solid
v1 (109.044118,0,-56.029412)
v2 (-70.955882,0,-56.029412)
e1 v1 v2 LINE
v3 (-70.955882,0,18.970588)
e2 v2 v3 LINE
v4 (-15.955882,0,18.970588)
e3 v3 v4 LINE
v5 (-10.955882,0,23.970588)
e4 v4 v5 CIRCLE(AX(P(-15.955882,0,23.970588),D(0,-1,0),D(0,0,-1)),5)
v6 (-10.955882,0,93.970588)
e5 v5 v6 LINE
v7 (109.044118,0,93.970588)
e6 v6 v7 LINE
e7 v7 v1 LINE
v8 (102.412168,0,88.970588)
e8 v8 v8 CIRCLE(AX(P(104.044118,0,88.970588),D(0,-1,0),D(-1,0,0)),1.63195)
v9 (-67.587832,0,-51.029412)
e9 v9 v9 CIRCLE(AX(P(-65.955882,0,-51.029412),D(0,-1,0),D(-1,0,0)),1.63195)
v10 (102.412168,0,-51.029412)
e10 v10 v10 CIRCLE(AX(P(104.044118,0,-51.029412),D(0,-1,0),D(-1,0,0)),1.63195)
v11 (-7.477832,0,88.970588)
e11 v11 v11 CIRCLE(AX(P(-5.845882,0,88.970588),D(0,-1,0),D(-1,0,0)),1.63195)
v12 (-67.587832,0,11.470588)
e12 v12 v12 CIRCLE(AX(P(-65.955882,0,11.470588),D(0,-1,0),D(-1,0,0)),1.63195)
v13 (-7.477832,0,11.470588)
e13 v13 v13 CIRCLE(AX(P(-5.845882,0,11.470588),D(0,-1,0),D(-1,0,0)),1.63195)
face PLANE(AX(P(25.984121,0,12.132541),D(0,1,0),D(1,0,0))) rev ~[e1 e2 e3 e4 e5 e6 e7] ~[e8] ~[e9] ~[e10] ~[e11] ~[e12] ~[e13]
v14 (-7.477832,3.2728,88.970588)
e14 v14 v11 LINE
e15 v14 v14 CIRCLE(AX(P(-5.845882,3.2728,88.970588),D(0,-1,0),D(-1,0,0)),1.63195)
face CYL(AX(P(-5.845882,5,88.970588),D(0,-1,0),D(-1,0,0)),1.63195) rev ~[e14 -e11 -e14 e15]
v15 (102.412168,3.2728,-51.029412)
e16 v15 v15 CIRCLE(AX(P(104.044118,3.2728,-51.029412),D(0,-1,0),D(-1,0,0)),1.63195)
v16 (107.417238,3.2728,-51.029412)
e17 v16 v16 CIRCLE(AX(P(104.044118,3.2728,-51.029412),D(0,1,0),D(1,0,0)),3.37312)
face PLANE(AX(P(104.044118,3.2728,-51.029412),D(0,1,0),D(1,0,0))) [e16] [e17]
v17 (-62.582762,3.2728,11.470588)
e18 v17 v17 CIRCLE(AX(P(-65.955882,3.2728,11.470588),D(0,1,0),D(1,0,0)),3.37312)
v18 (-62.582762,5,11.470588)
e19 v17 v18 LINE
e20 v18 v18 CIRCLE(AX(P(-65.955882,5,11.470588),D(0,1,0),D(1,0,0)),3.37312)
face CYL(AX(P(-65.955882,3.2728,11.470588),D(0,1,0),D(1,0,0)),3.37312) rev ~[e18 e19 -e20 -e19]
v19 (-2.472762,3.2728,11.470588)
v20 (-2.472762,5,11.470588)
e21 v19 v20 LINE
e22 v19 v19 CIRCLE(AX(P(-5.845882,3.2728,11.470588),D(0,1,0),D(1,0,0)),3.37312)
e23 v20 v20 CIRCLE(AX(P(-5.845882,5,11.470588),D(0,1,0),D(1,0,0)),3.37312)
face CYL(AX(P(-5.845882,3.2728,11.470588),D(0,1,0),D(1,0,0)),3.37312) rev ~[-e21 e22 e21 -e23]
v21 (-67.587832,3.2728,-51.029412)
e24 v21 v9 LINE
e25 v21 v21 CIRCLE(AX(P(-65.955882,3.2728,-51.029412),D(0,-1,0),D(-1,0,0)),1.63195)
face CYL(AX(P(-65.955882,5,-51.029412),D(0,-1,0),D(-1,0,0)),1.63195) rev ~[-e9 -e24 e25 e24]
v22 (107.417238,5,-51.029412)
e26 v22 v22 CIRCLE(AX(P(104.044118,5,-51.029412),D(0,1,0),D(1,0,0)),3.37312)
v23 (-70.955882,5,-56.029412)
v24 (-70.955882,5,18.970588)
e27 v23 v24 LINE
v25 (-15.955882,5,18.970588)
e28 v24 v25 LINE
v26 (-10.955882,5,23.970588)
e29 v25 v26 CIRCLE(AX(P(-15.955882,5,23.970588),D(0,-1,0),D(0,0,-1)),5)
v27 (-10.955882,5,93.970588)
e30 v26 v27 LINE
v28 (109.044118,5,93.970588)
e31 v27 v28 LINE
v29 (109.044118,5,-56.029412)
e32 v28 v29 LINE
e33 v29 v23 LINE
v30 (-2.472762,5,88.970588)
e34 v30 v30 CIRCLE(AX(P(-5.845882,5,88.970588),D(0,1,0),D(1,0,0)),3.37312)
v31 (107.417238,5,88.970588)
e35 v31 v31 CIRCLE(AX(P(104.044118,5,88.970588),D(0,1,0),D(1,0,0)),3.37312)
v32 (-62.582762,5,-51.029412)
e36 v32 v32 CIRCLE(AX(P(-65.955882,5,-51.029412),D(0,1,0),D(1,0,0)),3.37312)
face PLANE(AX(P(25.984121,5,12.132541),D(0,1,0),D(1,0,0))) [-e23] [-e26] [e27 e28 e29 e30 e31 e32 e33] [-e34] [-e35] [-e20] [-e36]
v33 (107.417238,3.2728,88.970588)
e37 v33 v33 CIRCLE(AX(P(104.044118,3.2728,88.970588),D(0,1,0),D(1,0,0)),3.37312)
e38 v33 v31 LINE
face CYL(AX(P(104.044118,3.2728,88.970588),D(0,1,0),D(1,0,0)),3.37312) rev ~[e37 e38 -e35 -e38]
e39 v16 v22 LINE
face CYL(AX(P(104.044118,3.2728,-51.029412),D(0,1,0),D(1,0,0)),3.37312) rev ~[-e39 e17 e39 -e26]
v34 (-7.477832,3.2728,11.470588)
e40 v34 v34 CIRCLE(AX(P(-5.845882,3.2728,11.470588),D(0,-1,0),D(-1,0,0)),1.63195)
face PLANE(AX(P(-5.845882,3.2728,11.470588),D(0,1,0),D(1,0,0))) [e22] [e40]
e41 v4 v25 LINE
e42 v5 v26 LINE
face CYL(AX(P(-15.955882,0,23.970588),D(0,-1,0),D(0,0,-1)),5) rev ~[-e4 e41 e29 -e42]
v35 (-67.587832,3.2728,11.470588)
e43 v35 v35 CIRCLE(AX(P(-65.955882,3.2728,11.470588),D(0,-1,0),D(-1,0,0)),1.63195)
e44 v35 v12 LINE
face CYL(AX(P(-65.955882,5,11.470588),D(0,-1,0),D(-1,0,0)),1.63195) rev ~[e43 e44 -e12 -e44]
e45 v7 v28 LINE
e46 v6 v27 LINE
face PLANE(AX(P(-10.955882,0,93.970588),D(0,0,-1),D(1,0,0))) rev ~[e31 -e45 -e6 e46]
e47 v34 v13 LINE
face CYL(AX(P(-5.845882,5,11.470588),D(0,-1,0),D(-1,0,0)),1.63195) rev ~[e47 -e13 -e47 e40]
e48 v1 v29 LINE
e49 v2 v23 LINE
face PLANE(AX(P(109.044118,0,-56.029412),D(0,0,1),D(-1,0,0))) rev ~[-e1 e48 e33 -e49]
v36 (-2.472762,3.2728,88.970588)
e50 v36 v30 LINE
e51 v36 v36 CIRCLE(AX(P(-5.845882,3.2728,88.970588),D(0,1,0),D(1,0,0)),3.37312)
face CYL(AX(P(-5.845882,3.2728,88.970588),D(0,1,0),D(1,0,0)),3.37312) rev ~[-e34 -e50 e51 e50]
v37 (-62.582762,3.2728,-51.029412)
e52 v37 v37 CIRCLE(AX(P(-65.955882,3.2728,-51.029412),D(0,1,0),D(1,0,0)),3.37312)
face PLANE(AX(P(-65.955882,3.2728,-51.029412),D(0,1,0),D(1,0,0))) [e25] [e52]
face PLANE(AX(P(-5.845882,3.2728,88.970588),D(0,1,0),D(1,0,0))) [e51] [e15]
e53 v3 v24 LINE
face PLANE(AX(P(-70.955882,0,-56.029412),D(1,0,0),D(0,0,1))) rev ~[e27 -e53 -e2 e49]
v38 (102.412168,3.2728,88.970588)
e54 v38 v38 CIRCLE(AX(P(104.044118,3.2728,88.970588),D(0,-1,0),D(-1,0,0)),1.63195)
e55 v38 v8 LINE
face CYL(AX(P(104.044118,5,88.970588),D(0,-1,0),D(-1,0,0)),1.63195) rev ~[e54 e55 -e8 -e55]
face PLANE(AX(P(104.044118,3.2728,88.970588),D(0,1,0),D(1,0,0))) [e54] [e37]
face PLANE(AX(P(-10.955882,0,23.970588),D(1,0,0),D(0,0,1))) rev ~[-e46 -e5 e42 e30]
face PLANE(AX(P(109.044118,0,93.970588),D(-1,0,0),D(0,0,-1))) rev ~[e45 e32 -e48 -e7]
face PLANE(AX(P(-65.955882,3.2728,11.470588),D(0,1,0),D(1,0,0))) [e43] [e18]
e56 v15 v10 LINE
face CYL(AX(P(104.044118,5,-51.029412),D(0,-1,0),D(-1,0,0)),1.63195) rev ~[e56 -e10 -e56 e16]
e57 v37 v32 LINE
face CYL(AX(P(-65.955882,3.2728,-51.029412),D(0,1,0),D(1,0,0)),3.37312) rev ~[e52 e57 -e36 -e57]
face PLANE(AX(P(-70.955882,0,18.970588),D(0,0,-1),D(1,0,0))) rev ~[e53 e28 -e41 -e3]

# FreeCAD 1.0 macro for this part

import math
import FreeCAD as App
import Part
import Sketcher
Q = App.Units.Quantity

doc = App.newDocument("Part")
body = doc.addObject("PartDesign::Body", "Body")

sketch1 = body.newObject("Sketcher::SketchObject", "Sketch")
sketch1.AttachmentSupport = (doc.getObject("XZ_Plane"), [""])
sketch1.MapMode = "FlatFace"
sketch1.addGeometry([
    Part.LineSegment(App.Vector(109, -56, 0), App.Vector(-71, -56, 0)),
    Part.LineSegment(App.Vector(-71, -56, 0), App.Vector(-71, 19, 0)),
    Part.LineSegment(App.Vector(-71, 19, 0), App.Vector(-16, 19, 0)),
    Part.ArcOfCircle(Part.Circle(App.Vector(-16, 24, 0), App.Vector(0, 0, 1), 5), math.radians(-90), math.radians(0)),
    Part.LineSegment(App.Vector(-11, 24, 0), App.Vector(-11, 94, 0)),
    Part.LineSegment(App.Vector(-11, 94, 0), App.Vector(109, 94, 0)),
    Part.LineSegment(App.Vector(109, 94, 0), App.Vector(109, -56, 0)),
], False)
sketch1.addConstraint([
    Sketcher.Constraint("Coincident", 0, 2, 1, 1),
    Sketcher.Constraint("Coincident", 1, 2, 2, 1),
    Sketcher.Constraint("Tangent", 2, 2, 3, 1),
    Sketcher.Constraint("Tangent", 3, 2, 4, 1),
    Sketcher.Constraint("Coincident", 4, 2, 5, 1),
    Sketcher.Constraint("Coincident", 5, 2, 6, 1),
    Sketcher.Constraint("Coincident", 6, 2, 0, 1),
    Sketcher.Constraint("Horizontal", 0),
    Sketcher.Constraint("Vertical", 1),
    Sketcher.Constraint("Horizontal", 2),
    Sketcher.Constraint("Vertical", 4),
    Sketcher.Constraint("Horizontal", 5),
    Sketcher.Constraint("Vertical", 6),
    Sketcher.Constraint("Radius", 3, Q("5 mm")),
    Sketcher.Constraint("DistanceX", 0, 2, 0, 1, Q("180 mm")),
    Sketcher.Constraint("DistanceX", 2, 1, 2, 2, Q("55 mm")),
    Sketcher.Constraint("DistanceY", 1, 1, 1, 2, Q("75 mm")),
    Sketcher.Constraint("DistanceY", 4, 1, 4, 2, Q("70 mm")),
    Sketcher.Constraint("DistanceY", -1, 1, 3, 3, Q("23.970588 mm")),
    Sketcher.Constraint("DistanceX", 3, 3, -1, 1, Q("15.955882 mm")),
])
pad1 = body.newObject("PartDesign::Pad", "Pad")
pad1.Profile = sketch1
pad1.Length = 5
pad1.Reversed = True

sketch2 = body.newObject("Sketcher::SketchObject", "Sketch001")
sketch2.AttachmentSupport = (doc.getObject("XZ_Plane"), [""])
sketch2.MapMode = "FlatFace"
sketch2.AttachmentOffset = App.Placement(App.Vector(0, 0, -5), App.Rotation())
sketch2.addGeometry([
    Part.Circle(App.Vector(-66, -51, 0), App.Vector(0, 0, 1), 1.6),
    Part.Circle(App.Vector(-66, 11.5, 0), App.Vector(0, 0, 1), 1.6),
    Part.Circle(App.Vector(-5.8, 11.5, 0), App.Vector(0, 0, 1), 1.6),
    Part.Circle(App.Vector(-5.8, 89, 0), App.Vector(0, 0, 1), 1.6),
    Part.Circle(App.Vector(104, 89, 0), App.Vector(0, 0, 1), 1.6),
    Part.Circle(App.Vector(104, -51, 0), App.Vector(0, 0, 1), 1.6),
], False)
sketch2.addConstraint([
    Sketcher.Constraint("Equal", 0, 1),
    Sketcher.Constraint("Equal", 1, 2),
    Sketcher.Constraint("Equal", 2, 3),
    Sketcher.Constraint("Equal", 3, 4),
    Sketcher.Constraint("Equal", 4, 5),
    Sketcher.Constraint("Horizontal", 1, 3, 2, 3),
    Sketcher.Constraint("Horizontal", 3, 3, 4, 3),
    Sketcher.Constraint("Horizontal", 0, 3, 5, 3),
    Sketcher.Constraint("Vertical", 0, 3, 1, 3),
    Sketcher.Constraint("Vertical", 2, 3, 3, 3),
    Sketcher.Constraint("Vertical", 4, 3, 5, 3),
    Sketcher.Constraint("DistanceY", 0, 3, 3, 3, Q("140 mm")),
    Sketcher.Constraint("DistanceX", 1, 3, 4, 3, Q("170 mm")),
    Sketcher.Constraint("Diameter", 0, Q("3.2639 mm")),
    Sketcher.Constraint("DistanceY", 0, 3, 1, 3, Q("62.5 mm")),
    Sketcher.Constraint("DistanceX", 1, 3, 2, 3, Q("60.11 mm")),
    Sketcher.Constraint("DistanceY", 0, 3, -1, 1, Q("51.029412 mm")),
    Sketcher.Constraint("DistanceX", 0, 3, -1, 1, Q("65.955882 mm")),
])
doc.recompute()
hole = body.newObject("PartDesign::Hole", "Hole")
hole.Profile = sketch2
hole.ThreadType = "None"
hole.Diameter = 3.2639
hole.DepthType = "Dimension"
hole.Depth = 5
hole.DrillPoint = "Flat"
hole.HoleCutType = "Counterbore"
hole.HoleCutDiameter = 6.74624
hole.HoleCutDepth = 1.7272
hole.Reversed = True

doc.recompute()
